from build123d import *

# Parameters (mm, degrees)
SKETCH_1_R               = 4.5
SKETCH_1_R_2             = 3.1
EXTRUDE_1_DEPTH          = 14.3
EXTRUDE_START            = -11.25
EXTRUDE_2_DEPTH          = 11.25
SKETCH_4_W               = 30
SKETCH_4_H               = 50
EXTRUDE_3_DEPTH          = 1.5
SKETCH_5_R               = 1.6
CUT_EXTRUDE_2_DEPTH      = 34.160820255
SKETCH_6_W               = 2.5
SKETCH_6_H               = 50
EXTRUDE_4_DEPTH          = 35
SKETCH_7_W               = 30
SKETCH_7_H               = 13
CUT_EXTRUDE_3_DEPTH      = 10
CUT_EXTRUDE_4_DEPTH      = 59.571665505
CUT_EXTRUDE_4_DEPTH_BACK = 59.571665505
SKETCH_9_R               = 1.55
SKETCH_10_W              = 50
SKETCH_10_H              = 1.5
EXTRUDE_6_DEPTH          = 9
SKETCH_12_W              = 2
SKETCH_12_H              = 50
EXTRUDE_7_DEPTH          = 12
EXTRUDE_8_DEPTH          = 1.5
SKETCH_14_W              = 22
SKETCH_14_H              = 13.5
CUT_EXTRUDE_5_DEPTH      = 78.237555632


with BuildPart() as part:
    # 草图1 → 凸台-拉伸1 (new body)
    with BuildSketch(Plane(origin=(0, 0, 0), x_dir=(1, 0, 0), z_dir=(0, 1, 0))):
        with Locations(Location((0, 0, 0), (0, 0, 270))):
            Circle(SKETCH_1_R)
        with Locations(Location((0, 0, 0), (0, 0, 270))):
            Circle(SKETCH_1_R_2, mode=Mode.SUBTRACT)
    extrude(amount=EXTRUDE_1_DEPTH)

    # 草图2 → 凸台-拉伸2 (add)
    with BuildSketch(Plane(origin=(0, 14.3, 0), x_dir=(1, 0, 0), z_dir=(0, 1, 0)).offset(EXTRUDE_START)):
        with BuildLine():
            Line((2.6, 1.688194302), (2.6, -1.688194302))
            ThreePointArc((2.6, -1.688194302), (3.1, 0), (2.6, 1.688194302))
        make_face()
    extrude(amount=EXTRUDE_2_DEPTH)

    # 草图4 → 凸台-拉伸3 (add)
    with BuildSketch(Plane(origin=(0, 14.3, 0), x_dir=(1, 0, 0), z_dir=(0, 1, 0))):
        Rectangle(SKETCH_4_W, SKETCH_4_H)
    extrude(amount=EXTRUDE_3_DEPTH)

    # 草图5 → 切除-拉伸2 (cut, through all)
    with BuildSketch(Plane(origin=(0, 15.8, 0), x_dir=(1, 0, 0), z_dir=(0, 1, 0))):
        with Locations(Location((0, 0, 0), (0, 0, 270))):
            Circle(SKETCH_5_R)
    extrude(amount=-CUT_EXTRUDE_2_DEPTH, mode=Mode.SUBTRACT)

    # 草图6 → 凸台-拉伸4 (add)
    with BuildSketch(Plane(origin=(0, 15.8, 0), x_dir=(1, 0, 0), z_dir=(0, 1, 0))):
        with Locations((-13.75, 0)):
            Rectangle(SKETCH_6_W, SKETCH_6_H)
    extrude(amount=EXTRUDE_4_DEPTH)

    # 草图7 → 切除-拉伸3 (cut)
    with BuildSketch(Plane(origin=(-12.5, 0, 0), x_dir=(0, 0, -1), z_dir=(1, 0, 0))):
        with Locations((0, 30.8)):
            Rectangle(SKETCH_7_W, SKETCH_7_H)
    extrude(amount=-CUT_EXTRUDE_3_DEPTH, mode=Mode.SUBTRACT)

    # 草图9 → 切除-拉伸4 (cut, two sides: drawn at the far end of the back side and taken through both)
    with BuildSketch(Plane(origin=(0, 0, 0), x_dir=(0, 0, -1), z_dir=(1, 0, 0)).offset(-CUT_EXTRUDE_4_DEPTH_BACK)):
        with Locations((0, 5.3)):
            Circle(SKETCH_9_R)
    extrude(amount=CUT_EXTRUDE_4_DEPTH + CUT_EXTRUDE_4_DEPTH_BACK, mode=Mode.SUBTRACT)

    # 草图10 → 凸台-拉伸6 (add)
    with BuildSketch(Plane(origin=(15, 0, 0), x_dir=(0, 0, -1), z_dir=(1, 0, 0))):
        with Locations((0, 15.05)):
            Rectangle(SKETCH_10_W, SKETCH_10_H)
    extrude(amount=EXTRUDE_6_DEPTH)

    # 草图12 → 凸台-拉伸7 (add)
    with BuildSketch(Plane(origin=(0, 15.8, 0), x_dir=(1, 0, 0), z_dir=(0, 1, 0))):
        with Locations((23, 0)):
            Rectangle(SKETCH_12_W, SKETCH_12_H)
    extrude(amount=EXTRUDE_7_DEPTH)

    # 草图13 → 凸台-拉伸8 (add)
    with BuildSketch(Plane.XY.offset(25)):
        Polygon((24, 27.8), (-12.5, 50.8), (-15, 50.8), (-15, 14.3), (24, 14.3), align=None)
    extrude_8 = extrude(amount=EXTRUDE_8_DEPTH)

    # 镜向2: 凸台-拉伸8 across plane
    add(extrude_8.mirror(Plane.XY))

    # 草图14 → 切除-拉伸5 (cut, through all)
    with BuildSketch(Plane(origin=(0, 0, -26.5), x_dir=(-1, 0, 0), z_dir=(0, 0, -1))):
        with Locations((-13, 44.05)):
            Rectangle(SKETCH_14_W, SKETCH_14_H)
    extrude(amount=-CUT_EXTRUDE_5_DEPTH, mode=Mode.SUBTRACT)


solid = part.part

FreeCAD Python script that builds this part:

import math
import FreeCAD as App
import Part
import Sketcher

V = App.Vector


def add_polygon(sketch, points):
    """Adds a closed chain of lines whose ends are joined by coincident constraints."""
    first, n = sketch.GeometryCount, len(points)
    for a, b in zip(points, points[1:] + points[:1]):
        sketch.addGeometry(Part.LineSegment(App.Vector(*a, 0), App.Vector(*b, 0)), False)
    for i in range(n):
        sketch.addConstraint(Sketcher.Constraint("Coincident", first + i, 2, first + (i + 1) % n, 1))

doc = App.newDocument("Part")
params = doc.addObject("Spreadsheet::Sheet", "Params")
for row, (alias, value) in enumerate([
    ("sketch1_diameter", "9 mm"),
    ("sketch1_diameter2", "6.2 mm"),
    ("pad1_length", "14.3 mm"),
    ("sketch2_radius", "3.1 mm"),
    ("pad2_length", "11.25 mm"),
    ("sketch3_width", "30 mm"),
    ("sketch3_height", "50 mm"),
    ("pad3_length", "1.5 mm"),
    ("sketch4_diameter", "3.2 mm"),
    ("sketch5_height", "50 mm"),
    ("sketch5_width", "2.5 mm"),
    ("pad4_length", "35 mm"),
    ("sketch6_width", "13 mm"),
    ("sketch6_height", "30 mm"),
    ("pocket2_length", "10 mm"),
    ("sketch7_diameter", "3.1 mm"),
    ("sketch8_height", "50 mm"),
    ("sketch8_width", "1.5 mm"),
    ("pad5_length", "9 mm"),
    ("sketch9_width", "2 mm"),
    ("sketch9_height", "50 mm"),
    ("pad6_length", "12 mm"),
    ("sketch10_width", "39 mm"),
    ("sketch10_width2", "2.5 mm"),
    ("sketch10_height", "36.5 mm"),
    ("sketch10_height2", "13.5 mm"),
    ("pad7_length", "1.5 mm"),
    ("sketch11_width", "22 mm"),
    ("sketch11_height", "13.5 mm"),
], start=1):
    params.set(f"A{row}", alias)
    params.set(f"B{row}", "=" + value)
    params.setAlias(f"B{row}", alias)

body = doc.addObject("PartDesign::Body", "Body")

sketch1 = doc.addObject("Sketcher::SketchObject", "Sketch")
body.addObject(sketch1)
sketch1.AttachmentSupport = (doc.XZ_Plane, [""])
sketch1.MapMode = "FlatFace"
sketch1.addGeometry([
    Part.Circle(V(0, 0, 0), V(0, 0, 1), 4.5),
    Part.Circle(V(0, 0, 0), V(0, 0, 1), 3.1),
], False)
sketch1.addConstraint([
    Sketcher.Constraint("Coincident", 0, 3, -1, 1),
    Sketcher.Constraint("Coincident", 1, 3, -1, 1),
    Sketcher.Constraint("Diameter", 0, 9.0),
    Sketcher.Constraint("Diameter", 1, 6.2),
])
sketch1.setExpression("Constraints[2]", "Params.sketch1_diameter")
sketch1.setExpression("Constraints[3]", "Params.sketch1_diameter2")
pad1 = doc.addObject("PartDesign::Pad", "Pad")
body.addObject(pad1)
pad1.Profile = sketch1
pad1.setExpression("Length", "Params.pad1_length")
pad1.Reversed = True

sketch2 = doc.addObject("Sketcher::SketchObject", "Sketch001")
body.addObject(sketch2)
sketch2.AttachmentSupport = (doc.XZ_Plane, [""])
sketch2.MapMode = "FlatFace"
sketch2.AttachmentOffset = App.Placement(V(0, 0, -3.05), App.Rotation())
sketch2.addGeometry([
    Part.LineSegment(V(2.6, -1.7, 0), V(2.6, 1.7, 0)),
    Part.ArcOfCircle(Part.Circle(V(0, 0, 0), V(0, 0, 1), 3.1), math.radians(-33), math.radians(33)),
], False)
sketch2.addConstraint([
    Sketcher.Constraint("Coincident", 0, 1, 1, 1),
    Sketcher.Constraint("Coincident", 1, 2, 0, 2),
    Sketcher.Constraint("Vertical", 0),
    Sketcher.Constraint("Coincident", 1, 3, -1, 1),
    Sketcher.Constraint("Radius", 1, 3.1),
    Sketcher.Constraint("DistanceX", -1, 1, 0, 1, 2.6),
])
sketch2.setExpression("Constraints[4]", "Params.sketch2_radius")
pad2 = doc.addObject("PartDesign::Pad", "Pad001")
body.addObject(pad2)
pad2.Profile = sketch2
pad2.setExpression("Length", "Params.pad2_length")
pad2.Reversed = True

sketch3 = doc.addObject("Sketcher::SketchObject", "Sketch002")
body.addObject(sketch3)
sketch3.AttachmentSupport = (doc.XZ_Plane, [""])
sketch3.MapMode = "FlatFace"
sketch3.AttachmentOffset = App.Placement(V(0, 0, -14.3), App.Rotation())
add_polygon(sketch3, [(-15, -25), (-15, 25), (15, 25), (15, -25)])
sketch3.addConstraint([
    Sketcher.Constraint("Vertical", 0),
    Sketcher.Constraint("Horizontal", 1),
    Sketcher.Constraint("Vertical", 2),
    Sketcher.Constraint("Horizontal", 3),
    Sketcher.Constraint("Symmetric", 0, 2, 2, 2, -1, 1),
    Sketcher.Constraint("DistanceX", 1, 1, 1, 2, 30.0),
    Sketcher.Constraint("DistanceY", 0, 1, 0, 2, 50.0),
])
sketch3.setExpression("Constraints[9]", "Params.sketch3_width")
sketch3.setExpression("Constraints[10]", "Params.sketch3_height")
pad3 = doc.addObject("PartDesign::Pad", "Pad002")
body.addObject(pad3)
pad3.Profile = sketch3
pad3.setExpression("Length", "Params.pad3_length")
pad3.Reversed = True

sketch4 = doc.addObject("Sketcher::SketchObject", "Sketch003")
body.addObject(sketch4)
sketch4.AttachmentSupport = (doc.XZ_Plane, [""])
sketch4.MapMode = "FlatFace"
sketch4.AttachmentOffset = App.Placement(V(0, 0, -15.8), App.Rotation())
sketch4.addGeometry(Part.Circle(V(0, 0, 0), V(0, 0, 1), 1.6), False)
sketch4.addConstraint([
    Sketcher.Constraint("Coincident", 0, 3, -1, 1),
    Sketcher.Constraint("Diameter", 0, 3.2),
])
sketch4.setExpression("Constraints[1]", "Params.sketch4_diameter")
pocket1 = doc.addObject("PartDesign::Pocket", "Pocket")
body.addObject(pocket1)
pocket1.Profile = sketch4
pocket1.Type = "ThroughAll"
pocket1.Reversed = True

sketch5 = doc.addObject("Sketcher::SketchObject", "Sketch004")
body.addObject(sketch5)
sketch5.AttachmentSupport = (doc.XZ_Plane, [""])
sketch5.MapMode = "FlatFace"
sketch5.AttachmentOffset = App.Placement(V(0, 0, -15.8), App.Rotation())
add_polygon(sketch5, [(-15, -25), (-15, 25), (-12.5, 25), (-12.5, -25)])
sketch5.addConstraint([
    Sketcher.Constraint("Vertical", 0),
    Sketcher.Constraint("Horizontal", 1),
    Sketcher.Constraint("Vertical", 2),
    Sketcher.Constraint("Horizontal", 3),
    Sketcher.Constraint("DistanceY", 0, 1, 0, 2, 50.0),
    Sketcher.Constraint("DistanceX", 1, 1, 1, 2, 2.5),
    Sketcher.Constraint("DistanceX", 0, 2, -1, 1, 15.0),
    Sketcher.Constraint("DistanceY", -1, 1, 0, 2, 25.0),
])
sketch5.setExpression("Constraints[8]", "Params.sketch5_height")
sketch5.setExpression("Constraints[9]", "Params.sketch5_width")
pad4 = doc.addObject("PartDesign::Pad", "Pad003")
body.addObject(pad4)
pad4.Profile = sketch5
pad4.setExpression("Length", "Params.pad4_length")
pad4.Reversed = True

sketch6 = doc.addObject("Sketcher::SketchObject", "Sketch005")
body.addObject(sketch6)
sketch6.AttachmentSupport = (doc.YZ_Plane, [""])
sketch6.MapMode = "FlatFace"
sketch6.AttachmentOffset = App.Placement(V(0, 0, -12.5), App.Rotation())
add_polygon(sketch6, [(37, 15), (24, 15), (24, -15), (37, -15)])
sketch6.addConstraint([
    Sketcher.Constraint("Horizontal", 0),
    Sketcher.Constraint("Vertical", 1),
    Sketcher.Constraint("Horizontal", 2),
    Sketcher.Constraint("Vertical", 3),
    Sketcher.Constraint("DistanceX", 0, 2, 0, 1, 13.0),
    Sketcher.Constraint("DistanceY", 1, 2, 1, 1, 30.0),
    Sketcher.Constraint("DistanceY", -1, 1, 0, 2, 15.0),
    Sketcher.Constraint("DistanceX", -1, 1, 0, 2, 24.3),
])
sketch6.setExpression("Constraints[8]", "Params.sketch6_width")
sketch6.setExpression("Constraints[9]", "Params.sketch6_height")
pocket2 = doc.addObject("PartDesign::Pocket", "Pocket001")
body.addObject(pocket2)
pocket2.Profile = sketch6
pocket2.setExpression("Length", "Params.pocket2_length")

sketch7 = doc.addObject("Sketcher::SketchObject", "Sketch006")
body.addObject(sketch7)
sketch7.AttachmentSupport = (doc.YZ_Plane, [""])
sketch7.MapMode = "FlatFace"
sketch7.addGeometry(Part.Circle(V(5.3, 0, 0), V(0, 0, 1), 1.6), False)
sketch7.addConstraint([
    Sketcher.Constraint("PointOnObject", 0, 3, -1),
    Sketcher.Constraint("Diameter", 0, 3.1),
    Sketcher.Constraint("DistanceX", -1, 1, 0, 3, 5.3),
])
sketch7.setExpression("Constraints[1]", "Params.sketch7_diameter")
pocket3 = doc.addObject("PartDesign::Pocket", "Pocket002")
body.addObject(pocket3)
pocket3.Profile = sketch7
pocket3.Type = "ThroughAll"
pocket3.Midplane = True

sketch8 = doc.addObject("Sketcher::SketchObject", "Sketch007")
body.addObject(sketch8)
sketch8.AttachmentSupport = (doc.YZ_Plane, [""])
sketch8.MapMode = "FlatFace"
sketch8.AttachmentOffset = App.Placement(V(0, 0, 15), App.Rotation())
add_polygon(sketch8, [(15.8, 25), (14.3, 25), (14.3, -25), (15.8, -25)])
sketch8.addConstraint([
    Sketcher.Constraint("Horizontal", 0),
    Sketcher.Constraint("Vertical", 1),
    Sketcher.Constraint("Horizontal", 2),
    Sketcher.Constraint("Vertical", 3),
    Sketcher.Constraint("DistanceY", 1, 2, 1, 1, 50.0),
    Sketcher.Constraint("DistanceX", 0, 2, 0, 1, 1.5),
    Sketcher.Constraint("DistanceY", -1, 1, 0, 2, 25.0),
    Sketcher.Constraint("DistanceX", -1, 1, 0, 2, 14.3),
])
sketch8.setExpression("Constraints[8]", "Params.sketch8_height")
sketch8.setExpression("Constraints[9]", "Params.sketch8_width")
pad5 = doc.addObject("PartDesign::Pad", "Pad004")
body.addObject(pad5)
pad5.Profile = sketch8
pad5.setExpression("Length", "Params.pad5_length")

sketch9 = doc.addObject("Sketcher::SketchObject", "Sketch008")
body.addObject(sketch9)
sketch9.AttachmentSupport = (doc.XZ_Plane, [""])
sketch9.MapMode = "FlatFace"
sketch9.AttachmentOffset = App.Placement(V(0, 0, -15.8), App.Rotation())
add_polygon(sketch9, [(22, -25), (22, 25), (24, 25), (24, -25)])
sketch9.addConstraint([
    Sketcher.Constraint("Vertical", 0),
    Sketcher.Constraint("Horizontal", 1),
    Sketcher.Constraint("Vertical", 2),
    Sketcher.Constraint("Horizontal", 3),
    Sketcher.Constraint("DistanceX", 1, 1, 1, 2, 2.0),
    Sketcher.Constraint("DistanceY", 0, 1, 0, 2, 50.0),
    Sketcher.Constraint("DistanceX", -1, 1, 0, 2, 22.0),
    Sketcher.Constraint("DistanceY", -1, 1, 0, 2, 25.0),
])
sketch9.setExpression("Constraints[8]", "Params.sketch9_width")
sketch9.setExpression("Constraints[9]", "Params.sketch9_height")
pad6 = doc.addObject("PartDesign::Pad", "Pad005")
body.addObject(pad6)
pad6.Profile = sketch9
pad6.setExpression("Length", "Params.pad6_length")
pad6.Reversed = True

sketch10 = doc.addObject("Sketcher::SketchObject", "Sketch009")
body.addObject(sketch10)
sketch10.AttachmentSupport = (doc.XY_Plane, [""])
sketch10.MapMode = "FlatFace"
sketch10.AttachmentOffset = App.Placement(V(0, 0, 25), App.Rotation())
add_polygon(sketch10, [(24, 27.8), (-12.5, 50.8), (-15, 50.8), (-15, 14.3), (24, 14.3)])
sketch10.addConstraint([
    Sketcher.Constraint("Horizontal", 1),
    Sketcher.Constraint("Vertical", 2),
    Sketcher.Constraint("Horizontal", 3),
    Sketcher.Constraint("Vertical", 4),
    Sketcher.Constraint("DistanceX", 3, 1, 3, 2, 39.0),
    Sketcher.Constraint("DistanceX", 1, 2, 1, 1, 2.5),
    Sketcher.Constraint("DistanceY", 2, 2, 2, 1, 36.5),
    Sketcher.Constraint("DistanceY", 4, 1, 4, 2, 13.5),
    Sketcher.Constraint("DistanceX", 1, 2, -1, 1, 15.0),
    Sketcher.Constraint("DistanceY", -1, 1, 0, 2, 50.8),
])
sketch10.setExpression("Constraints[9]", "Params.sketch10_width")
sketch10.setExpression("Constraints[10]", "Params.sketch10_width2")
sketch10.setExpression("Constraints[11]", "Params.sketch10_height")
sketch10.setExpression("Constraints[12]", "Params.sketch10_height2")
pad7 = doc.addObject("PartDesign::Pad", "Pad006")
body.addObject(pad7)
pad7.Profile = sketch10
pad7.setExpression("Length", "Params.pad7_length")
doc.recompute()

mirrored = doc.addObject("PartDesign::Mirrored", "Mirrored")
body.addObject(mirrored)
mirrored.Originals = [pad7]
mirrored.MirrorPlane = (doc.XY_Plane, [""])
body.Tip = mirrored

sketch11 = doc.addObject("Sketcher::SketchObject", "Sketch010")
body.addObject(sketch11)
sketch11.AttachmentSupport = (doc.XY_Plane, [""])
sketch11.MapMode = "FlatFace"
sketch11.AttachmentOffset = App.Placement(V(0, 0, -26.5), App.Rotation())
add_polygon(sketch11, [(24, 51), (24, 37), (2, 37), (2, 51)])
sketch11.addConstraint([
    Sketcher.Constraint("Vertical", 0),
    Sketcher.Constraint("Horizontal", 1),
    Sketcher.Constraint("Vertical", 2),
    Sketcher.Constraint("Horizontal", 3),
    Sketcher.Constraint("DistanceX", 1, 2, 1, 1, 22.0),
    Sketcher.Constraint("DistanceY", 0, 2, 0, 1, 13.5),
    Sketcher.Constraint("DistanceX", -1, 1, 0, 2, 24.0),
    Sketcher.Constraint("DistanceY", -1, 1, 0, 2, 37.3),
])
sketch11.setExpression("Constraints[8]", "Params.sketch11_width")
sketch11.setExpression("Constraints[9]", "Params.sketch11_height")
pocket4 = doc.addObject("PartDesign::Pocket", "Pocket003")
body.addObject(pocket4)
pocket4.Profile = sketch11
pocket4.Type = "ThroughAll"
pocket4.Reversed = True

doc.recompute()
